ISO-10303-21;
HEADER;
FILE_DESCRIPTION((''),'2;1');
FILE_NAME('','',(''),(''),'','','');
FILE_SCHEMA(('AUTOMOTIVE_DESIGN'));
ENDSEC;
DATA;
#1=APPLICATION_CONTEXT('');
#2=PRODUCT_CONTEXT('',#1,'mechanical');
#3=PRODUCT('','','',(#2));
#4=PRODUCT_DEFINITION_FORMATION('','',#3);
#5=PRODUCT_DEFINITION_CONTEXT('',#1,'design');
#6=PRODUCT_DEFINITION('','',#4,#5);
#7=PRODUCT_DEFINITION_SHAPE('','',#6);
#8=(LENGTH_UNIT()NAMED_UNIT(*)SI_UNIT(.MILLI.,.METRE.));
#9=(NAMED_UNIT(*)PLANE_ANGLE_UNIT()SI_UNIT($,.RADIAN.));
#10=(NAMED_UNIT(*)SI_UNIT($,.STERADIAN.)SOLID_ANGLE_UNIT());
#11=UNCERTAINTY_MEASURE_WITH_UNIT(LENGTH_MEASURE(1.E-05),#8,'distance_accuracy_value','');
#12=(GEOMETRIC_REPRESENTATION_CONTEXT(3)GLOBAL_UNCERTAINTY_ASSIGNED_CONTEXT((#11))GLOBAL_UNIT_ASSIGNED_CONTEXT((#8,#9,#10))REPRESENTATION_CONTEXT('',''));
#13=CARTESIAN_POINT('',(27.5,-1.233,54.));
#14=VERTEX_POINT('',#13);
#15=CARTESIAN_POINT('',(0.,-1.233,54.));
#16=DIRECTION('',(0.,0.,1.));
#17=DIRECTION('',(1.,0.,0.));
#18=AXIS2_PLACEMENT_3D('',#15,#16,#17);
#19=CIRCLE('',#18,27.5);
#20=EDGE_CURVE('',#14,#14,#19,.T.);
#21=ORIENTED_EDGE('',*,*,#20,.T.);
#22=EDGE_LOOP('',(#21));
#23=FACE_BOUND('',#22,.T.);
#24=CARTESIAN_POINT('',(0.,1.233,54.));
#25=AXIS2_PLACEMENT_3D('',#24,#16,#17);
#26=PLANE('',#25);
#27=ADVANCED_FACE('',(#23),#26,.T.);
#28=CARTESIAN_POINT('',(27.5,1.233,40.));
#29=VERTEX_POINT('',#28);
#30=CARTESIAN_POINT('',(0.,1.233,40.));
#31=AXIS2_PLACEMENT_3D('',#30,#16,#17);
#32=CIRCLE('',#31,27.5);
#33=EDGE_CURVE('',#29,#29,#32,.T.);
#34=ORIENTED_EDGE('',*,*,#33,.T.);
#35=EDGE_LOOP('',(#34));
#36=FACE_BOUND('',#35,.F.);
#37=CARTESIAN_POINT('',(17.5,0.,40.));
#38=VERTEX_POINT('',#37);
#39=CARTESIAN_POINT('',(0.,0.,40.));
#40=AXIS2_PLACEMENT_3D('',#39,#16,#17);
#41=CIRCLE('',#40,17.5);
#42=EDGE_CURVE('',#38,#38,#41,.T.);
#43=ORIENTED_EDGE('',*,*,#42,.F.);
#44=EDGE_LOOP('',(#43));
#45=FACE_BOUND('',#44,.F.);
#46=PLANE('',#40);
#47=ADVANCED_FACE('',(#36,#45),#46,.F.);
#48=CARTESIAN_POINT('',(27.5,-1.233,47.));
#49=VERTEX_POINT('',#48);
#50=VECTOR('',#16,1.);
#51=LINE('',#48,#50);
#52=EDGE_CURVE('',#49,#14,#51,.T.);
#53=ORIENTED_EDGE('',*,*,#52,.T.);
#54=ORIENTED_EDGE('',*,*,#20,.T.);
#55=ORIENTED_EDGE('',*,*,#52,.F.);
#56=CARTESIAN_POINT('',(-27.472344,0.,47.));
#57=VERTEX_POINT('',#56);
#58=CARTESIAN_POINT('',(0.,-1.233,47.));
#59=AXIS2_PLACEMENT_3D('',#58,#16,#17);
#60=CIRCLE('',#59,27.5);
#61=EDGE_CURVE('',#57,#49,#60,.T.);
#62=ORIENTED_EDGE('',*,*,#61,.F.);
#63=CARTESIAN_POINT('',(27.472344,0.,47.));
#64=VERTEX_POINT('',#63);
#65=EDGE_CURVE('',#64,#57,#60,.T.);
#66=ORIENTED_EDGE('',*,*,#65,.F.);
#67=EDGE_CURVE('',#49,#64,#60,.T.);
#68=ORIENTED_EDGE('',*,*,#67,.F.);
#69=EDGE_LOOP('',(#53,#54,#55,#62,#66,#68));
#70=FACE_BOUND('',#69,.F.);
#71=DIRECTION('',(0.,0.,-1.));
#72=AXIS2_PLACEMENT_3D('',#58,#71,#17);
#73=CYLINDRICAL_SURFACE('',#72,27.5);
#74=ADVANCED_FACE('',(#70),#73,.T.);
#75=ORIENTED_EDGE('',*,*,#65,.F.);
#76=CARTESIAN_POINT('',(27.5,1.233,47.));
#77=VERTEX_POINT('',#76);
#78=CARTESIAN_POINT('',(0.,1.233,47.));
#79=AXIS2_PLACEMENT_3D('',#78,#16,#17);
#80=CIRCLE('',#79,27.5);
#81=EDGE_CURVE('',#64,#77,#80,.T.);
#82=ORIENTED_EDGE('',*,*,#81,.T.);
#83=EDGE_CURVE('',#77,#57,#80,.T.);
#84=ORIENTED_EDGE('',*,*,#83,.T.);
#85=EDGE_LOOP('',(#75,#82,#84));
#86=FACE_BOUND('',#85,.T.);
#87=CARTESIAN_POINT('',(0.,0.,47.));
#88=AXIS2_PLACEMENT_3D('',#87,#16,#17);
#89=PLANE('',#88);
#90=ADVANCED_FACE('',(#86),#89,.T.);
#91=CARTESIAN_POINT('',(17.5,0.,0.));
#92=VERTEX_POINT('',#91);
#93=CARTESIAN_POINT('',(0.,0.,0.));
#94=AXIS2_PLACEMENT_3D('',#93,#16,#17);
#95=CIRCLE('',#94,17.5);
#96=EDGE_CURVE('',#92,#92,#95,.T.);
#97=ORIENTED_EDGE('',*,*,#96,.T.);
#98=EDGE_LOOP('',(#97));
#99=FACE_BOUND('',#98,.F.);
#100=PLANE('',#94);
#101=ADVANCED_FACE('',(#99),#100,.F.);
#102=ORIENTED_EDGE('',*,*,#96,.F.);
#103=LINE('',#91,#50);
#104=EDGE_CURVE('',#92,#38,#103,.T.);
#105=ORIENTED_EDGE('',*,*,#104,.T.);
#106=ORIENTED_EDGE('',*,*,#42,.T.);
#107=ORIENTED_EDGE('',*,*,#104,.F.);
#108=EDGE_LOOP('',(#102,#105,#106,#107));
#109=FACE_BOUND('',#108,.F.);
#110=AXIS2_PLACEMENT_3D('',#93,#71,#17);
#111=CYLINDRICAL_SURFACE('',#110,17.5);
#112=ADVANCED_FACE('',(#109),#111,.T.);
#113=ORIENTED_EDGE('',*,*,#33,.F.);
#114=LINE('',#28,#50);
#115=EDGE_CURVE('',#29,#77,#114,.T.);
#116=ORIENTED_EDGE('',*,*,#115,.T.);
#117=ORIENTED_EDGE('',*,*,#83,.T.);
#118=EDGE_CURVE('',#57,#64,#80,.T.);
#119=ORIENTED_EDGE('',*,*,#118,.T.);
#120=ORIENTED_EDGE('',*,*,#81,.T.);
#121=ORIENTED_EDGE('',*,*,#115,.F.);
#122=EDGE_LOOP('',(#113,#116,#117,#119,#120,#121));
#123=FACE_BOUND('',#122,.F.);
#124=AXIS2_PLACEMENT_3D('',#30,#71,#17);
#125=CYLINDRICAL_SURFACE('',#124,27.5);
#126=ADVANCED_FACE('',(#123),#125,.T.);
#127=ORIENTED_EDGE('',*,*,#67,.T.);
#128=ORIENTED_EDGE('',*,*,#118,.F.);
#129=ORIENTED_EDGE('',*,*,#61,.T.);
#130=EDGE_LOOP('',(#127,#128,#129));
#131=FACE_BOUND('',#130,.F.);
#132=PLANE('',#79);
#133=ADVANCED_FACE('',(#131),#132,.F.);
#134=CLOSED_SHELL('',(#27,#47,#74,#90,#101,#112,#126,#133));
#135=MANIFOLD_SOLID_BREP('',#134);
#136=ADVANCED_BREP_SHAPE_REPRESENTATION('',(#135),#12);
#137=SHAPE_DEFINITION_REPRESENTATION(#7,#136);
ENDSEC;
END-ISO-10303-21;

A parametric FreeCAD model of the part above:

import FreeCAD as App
import Part
import Sketcher

V = App.Vector
Q = App.Units.Quantity

doc = App.newDocument("Part")
body = doc.addObject("PartDesign::Body", "Body")

sketch1 = body.newObject("Sketcher::SketchObject", "Sketch")
sketch1.AttachmentSupport = (doc.getObject("XY_Plane"), [""])
sketch1.MapMode = "FlatFace"
sketch1.addGeometry(Part.Circle(V(0, 0, 0), V(0, 0, 1), 18), False)
sketch1.addConstraint([
    Sketcher.Constraint("Coincident", 0, 3, -1, 1),
    Sketcher.Constraint("Diameter", 0, Q("35 mm")),
])
pad1 = body.newObject("PartDesign::Pad", "Pad")
pad1.Profile = sketch1
pad1.Length = 40

sketch2 = body.newObject("Sketcher::SketchObject", "Sketch001")
sketch2.AttachmentSupport = (doc.getObject("XY_Plane"), [""])
sketch2.MapMode = "FlatFace"
sketch2.AttachmentOffset = App.Placement(V(0, 0, 40), App.Rotation())
sketch2.addGeometry(Part.Circle(V(0, 1, 0), V(0, 0, 1), 28), False)
sketch2.addConstraint([
    Sketcher.Constraint("PointOnObject", 0, 3, -2),
    Sketcher.Constraint("Diameter", 0, Q("55 mm")),
    Sketcher.Constraint("DistanceY", -1, 1, 0, 3, Q("1.233 mm")),
])
pad2 = body.newObject("PartDesign::Pad", "Pad001")
pad2.Profile = sketch2
pad2.Length = 7

sketch3 = body.newObject("Sketcher::SketchObject", "Sketch002")
sketch3.AttachmentSupport = (doc.getObject("XY_Plane"), [""])
sketch3.MapMode = "FlatFace"
sketch3.AttachmentOffset = App.Placement(V(0, 0, 47), App.Rotation())
sketch3.addGeometry(Part.Circle(V(0, -1, 0), V(0, 0, 1), 28), False)
sketch3.addConstraint([
    Sketcher.Constraint("PointOnObject", 0, 3, -2),
    Sketcher.Constraint("Diameter", 0, Q("55 mm")),
    Sketcher.Constraint("DistanceY", 0, 3, -1, 1, Q("1.233 mm")),
])
pad3 = body.newObject("PartDesign::Pad", "Pad002")
pad3.Profile = sketch3
pad3.Length = 7

doc.recompute()
